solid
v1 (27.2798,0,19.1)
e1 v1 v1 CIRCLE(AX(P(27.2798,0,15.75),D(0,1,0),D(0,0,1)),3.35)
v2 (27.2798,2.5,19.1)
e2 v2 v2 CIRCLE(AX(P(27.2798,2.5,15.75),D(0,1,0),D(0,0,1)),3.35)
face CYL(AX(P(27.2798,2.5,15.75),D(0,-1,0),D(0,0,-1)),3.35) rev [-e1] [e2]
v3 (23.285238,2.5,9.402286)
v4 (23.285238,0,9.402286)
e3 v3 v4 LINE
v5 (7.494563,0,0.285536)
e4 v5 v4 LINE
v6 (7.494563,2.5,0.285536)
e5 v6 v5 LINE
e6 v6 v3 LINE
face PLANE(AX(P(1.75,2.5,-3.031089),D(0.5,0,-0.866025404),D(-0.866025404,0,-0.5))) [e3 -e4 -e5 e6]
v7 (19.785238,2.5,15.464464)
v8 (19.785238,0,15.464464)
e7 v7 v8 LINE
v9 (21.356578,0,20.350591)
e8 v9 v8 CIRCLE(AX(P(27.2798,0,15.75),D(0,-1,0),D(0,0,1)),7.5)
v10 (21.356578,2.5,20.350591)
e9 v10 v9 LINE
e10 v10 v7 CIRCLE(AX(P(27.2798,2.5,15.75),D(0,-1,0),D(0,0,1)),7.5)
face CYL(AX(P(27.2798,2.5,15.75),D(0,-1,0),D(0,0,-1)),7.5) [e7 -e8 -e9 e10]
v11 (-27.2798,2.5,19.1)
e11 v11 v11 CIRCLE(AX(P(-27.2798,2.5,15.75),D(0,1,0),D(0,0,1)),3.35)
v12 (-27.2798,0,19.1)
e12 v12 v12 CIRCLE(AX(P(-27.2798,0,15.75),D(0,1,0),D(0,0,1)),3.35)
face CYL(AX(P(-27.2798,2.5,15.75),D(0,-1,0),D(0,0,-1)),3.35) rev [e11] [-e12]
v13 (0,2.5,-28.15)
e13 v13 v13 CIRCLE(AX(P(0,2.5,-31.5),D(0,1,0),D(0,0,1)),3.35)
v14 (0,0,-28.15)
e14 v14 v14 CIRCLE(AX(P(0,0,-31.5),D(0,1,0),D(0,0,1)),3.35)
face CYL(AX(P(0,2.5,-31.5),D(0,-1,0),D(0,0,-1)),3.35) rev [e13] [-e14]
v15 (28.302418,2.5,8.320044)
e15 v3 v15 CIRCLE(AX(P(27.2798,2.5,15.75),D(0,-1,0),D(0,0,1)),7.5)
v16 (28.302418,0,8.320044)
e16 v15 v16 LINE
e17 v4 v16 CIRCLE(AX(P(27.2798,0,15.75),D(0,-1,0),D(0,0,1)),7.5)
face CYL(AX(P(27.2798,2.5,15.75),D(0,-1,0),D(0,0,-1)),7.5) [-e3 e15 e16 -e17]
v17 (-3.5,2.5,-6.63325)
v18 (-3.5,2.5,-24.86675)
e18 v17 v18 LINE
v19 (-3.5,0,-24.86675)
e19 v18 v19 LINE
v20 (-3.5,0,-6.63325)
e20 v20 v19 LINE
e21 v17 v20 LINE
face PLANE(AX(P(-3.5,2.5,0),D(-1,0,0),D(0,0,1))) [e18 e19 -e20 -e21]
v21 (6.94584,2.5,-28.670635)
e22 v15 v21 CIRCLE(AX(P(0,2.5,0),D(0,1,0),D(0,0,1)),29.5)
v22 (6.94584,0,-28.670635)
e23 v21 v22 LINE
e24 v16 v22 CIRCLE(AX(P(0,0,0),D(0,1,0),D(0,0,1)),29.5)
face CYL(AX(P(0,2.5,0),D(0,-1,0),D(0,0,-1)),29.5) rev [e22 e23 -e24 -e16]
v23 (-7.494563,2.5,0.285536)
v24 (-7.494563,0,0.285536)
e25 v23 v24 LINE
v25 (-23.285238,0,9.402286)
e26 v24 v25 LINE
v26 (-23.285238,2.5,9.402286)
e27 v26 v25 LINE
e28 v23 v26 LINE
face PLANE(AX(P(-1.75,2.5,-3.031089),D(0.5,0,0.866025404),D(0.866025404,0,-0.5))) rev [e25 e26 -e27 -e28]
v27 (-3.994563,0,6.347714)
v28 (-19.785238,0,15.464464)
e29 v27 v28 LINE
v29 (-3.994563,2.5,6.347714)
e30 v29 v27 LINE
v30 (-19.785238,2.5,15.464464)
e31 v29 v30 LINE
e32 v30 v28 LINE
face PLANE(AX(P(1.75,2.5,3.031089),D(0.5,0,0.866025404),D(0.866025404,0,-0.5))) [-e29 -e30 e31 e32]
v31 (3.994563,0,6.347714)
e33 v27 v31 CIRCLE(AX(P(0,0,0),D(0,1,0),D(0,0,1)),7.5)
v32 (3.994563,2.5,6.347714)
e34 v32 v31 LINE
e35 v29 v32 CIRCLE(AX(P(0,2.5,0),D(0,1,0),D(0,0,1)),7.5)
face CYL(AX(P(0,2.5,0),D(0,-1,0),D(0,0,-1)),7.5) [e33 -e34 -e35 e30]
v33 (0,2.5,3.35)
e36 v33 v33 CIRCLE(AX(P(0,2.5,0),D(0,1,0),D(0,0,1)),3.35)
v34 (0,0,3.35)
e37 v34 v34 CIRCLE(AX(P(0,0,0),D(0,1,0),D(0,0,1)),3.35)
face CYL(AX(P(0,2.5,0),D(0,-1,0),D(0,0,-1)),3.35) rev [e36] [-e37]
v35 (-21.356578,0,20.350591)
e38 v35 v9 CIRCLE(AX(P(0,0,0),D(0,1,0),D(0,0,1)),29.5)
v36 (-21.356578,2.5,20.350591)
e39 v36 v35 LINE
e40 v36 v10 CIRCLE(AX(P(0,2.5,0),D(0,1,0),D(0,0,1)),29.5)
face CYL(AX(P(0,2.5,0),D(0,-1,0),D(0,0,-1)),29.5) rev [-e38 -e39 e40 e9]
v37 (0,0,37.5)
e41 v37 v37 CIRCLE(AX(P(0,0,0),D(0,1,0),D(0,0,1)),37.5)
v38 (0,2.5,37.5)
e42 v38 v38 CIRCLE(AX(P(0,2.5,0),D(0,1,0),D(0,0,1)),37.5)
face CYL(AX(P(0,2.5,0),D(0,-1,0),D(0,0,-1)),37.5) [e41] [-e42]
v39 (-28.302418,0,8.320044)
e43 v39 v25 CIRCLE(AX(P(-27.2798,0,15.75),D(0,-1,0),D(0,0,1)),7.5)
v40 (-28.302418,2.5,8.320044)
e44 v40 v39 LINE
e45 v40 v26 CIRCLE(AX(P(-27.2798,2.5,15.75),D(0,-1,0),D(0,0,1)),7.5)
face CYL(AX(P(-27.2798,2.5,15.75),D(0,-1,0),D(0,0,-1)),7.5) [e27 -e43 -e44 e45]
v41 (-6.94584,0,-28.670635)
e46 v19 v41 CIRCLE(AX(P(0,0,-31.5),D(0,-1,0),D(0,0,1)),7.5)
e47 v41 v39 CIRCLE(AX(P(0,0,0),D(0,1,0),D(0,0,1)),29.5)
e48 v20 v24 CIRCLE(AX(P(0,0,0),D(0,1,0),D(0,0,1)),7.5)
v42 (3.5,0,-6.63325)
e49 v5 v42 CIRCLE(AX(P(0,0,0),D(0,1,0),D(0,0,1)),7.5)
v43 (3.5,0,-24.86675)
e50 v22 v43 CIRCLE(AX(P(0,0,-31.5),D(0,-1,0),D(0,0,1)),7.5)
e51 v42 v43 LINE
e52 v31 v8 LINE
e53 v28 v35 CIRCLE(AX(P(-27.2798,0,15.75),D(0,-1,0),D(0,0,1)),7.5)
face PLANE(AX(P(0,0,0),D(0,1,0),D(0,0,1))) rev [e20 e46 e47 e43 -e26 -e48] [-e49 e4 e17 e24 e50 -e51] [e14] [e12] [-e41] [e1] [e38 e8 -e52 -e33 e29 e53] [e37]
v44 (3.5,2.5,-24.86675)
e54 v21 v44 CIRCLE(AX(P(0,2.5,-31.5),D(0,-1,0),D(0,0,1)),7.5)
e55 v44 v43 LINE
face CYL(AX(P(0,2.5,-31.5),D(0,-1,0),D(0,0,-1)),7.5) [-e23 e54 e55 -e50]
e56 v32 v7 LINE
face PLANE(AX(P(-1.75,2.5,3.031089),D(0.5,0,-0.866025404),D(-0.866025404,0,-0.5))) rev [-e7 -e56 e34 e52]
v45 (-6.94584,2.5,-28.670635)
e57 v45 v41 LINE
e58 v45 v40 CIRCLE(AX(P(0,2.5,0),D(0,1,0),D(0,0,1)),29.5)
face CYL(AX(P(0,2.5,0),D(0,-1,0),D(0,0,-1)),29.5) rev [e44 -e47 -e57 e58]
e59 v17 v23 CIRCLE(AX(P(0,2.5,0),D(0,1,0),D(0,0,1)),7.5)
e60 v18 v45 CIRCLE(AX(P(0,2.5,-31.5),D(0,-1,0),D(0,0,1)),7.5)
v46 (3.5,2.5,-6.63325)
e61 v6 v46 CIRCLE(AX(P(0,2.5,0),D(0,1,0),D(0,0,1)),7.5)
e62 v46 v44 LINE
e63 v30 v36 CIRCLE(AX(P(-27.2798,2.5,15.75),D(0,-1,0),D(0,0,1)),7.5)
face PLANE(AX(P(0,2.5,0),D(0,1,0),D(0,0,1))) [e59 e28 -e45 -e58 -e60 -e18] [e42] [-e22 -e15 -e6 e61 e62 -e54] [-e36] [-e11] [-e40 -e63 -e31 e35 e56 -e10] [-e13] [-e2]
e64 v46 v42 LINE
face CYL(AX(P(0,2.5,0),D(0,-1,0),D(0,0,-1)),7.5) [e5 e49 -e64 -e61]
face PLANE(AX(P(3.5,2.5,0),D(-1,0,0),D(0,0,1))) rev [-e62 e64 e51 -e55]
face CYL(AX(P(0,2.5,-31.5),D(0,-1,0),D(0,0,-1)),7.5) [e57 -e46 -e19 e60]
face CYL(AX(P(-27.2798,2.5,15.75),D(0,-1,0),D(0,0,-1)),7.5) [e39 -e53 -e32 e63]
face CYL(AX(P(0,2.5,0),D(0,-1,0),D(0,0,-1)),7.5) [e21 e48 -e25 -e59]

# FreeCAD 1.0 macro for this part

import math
import FreeCAD as App
import Part
import Sketcher

V = App.Vector
Q = App.Units.Quantity

doc = App.newDocument("Part")
body = doc.addObject("PartDesign::Body", "Body")

sketch1 = body.newObject("Sketcher::SketchObject", "Sketch")
sketch1.AttachmentSupport = (doc.getObject("XZ_Plane"), [""])
sketch1.MapMode = "FlatFace"
sketch1.addGeometry([
    Part.Circle(V(0, 0, 0), V(0, 0, 1), 37.5),
    Part.Circle(V(0, -31.5, 0), V(0, 0, 1), 3.4),
    Part.Circle(V(-27.3, 15.8, 0), V(0, 0, 1), 3.4),
    Part.ArcOfCircle(Part.Circle(V(0, 0, 0), V(0, 0, 1), 29.5), math.radians(164), math.radians(256)),
    Part.ArcOfCircle(Part.Circle(V(0, -31.5, 0), V(0, 0, 1), 7.5), math.radians(22), math.radians(158)),
    Part.ArcOfCircle(Part.Circle(V(0, 0, 0), V(0, 0, 1), 29.5), math.radians(-76), math.radians(16)),
    Part.ArcOfCircle(Part.Circle(V(27.3, 15.8, 0), V(0, 0, 1), 7.5), math.radians(142), math.radians(278)),
    Part.ArcOfCircle(Part.Circle(V(0, 0, 0), V(0, 0, 1), 29.5), math.radians(44), math.radians(136)),
    Part.ArcOfCircle(Part.Circle(V(-27.3, 15.8, 0), V(0, 0, 1), 7.5), math.radians(-98), math.radians(38)),
    Part.Circle(V(27.3, 15.8, 0), V(0, 0, 1), 3.4),
], False)
sketch1.addConstraint([
    Sketcher.Constraint("Coincident", 3, 2, 4, 2),
    Sketcher.Constraint("Coincident", 4, 1, 5, 1),
    Sketcher.Constraint("Coincident", 5, 2, 6, 2),
    Sketcher.Constraint("Coincident", 6, 1, 7, 1),
    Sketcher.Constraint("Coincident", 7, 2, 8, 2),
    Sketcher.Constraint("Coincident", 8, 1, 3, 1),
    Sketcher.Constraint("Coincident", 0, 3, -1, 1),
    Sketcher.Constraint("Coincident", 3, 3, -1, 1),
    Sketcher.Constraint("Coincident", 5, 3, -1, 1),
    Sketcher.Constraint("Coincident", 7, 3, -1, 1),
    Sketcher.Constraint("Coincident", 4, 3, 1, 3),
    Sketcher.Constraint("Coincident", 8, 3, 2, 3),
    Sketcher.Constraint("Coincident", 9, 3, 6, 3),
    Sketcher.Constraint("Equal", 1, 2),
    Sketcher.Constraint("Equal", 3, 5),
    Sketcher.Constraint("Equal", 4, 6),
    Sketcher.Constraint("Equal", 5, 7),
    Sketcher.Constraint("Equal", 6, 8),
    Sketcher.Constraint("Equal", 2, 9),
    Sketcher.Constraint("Symmetric", 2, 3, 6, 3, -2),
    Sketcher.Constraint("PointOnObject", 1, 3, -2),
    Sketcher.Constraint("Diameter", 0, 75.0),
    Sketcher.Constraint("Diameter", 1, 6.7),
    Sketcher.Constraint("Radius", 3, 29.5),
    Sketcher.Constraint("Radius", 4, 7.5),
    Sketcher.Constraint("DistanceY", 1, 3, -1, 1, 31.5),
    Sketcher.Constraint("DistanceY", -1, 1, 2, 3, 15.75),
    Sketcher.Constraint("DistanceX", 2, 3, -1, 1, 27.2798),
])
pad1 = body.newObject("PartDesign::Pad", "Pad")
pad1.Profile = sketch1
pad1.Length = 2.5
pad1.Reversed = True

sketch2 = body.newObject("Sketcher::SketchObject", "Sketch001")
sketch2.AttachmentSupport = (doc.getObject("XZ_Plane"), [""])
sketch2.MapMode = "FlatFace"
sketch2.addGeometry([
    Part.LineSegment(V(-3.5, -31.5, 0), V(-3.5, -6.63, 0)),
    Part.ArcOfCircle(Part.Circle(V(0, 0, 0), V(0, 0, 1), 7.5), math.radians(178), math.radians(242)),
    Part.LineSegment(V(-7.49, 0.29, 0), V(-29.03, 12.72, 0)),
    Part.LineSegment(V(-29.03, 12.72, 0), V(-28.95, 12.85, 0)),
    Part.ArcOfCircle(Part.Circle(V(-27.28, 15.75, 0), V(0, 0, 1), 3.35), math.radians(-120), math.radians(60)),
    Part.LineSegment(V(-25.6, 18.65, 0), V(-25.53, 18.78, 0)),
    Part.LineSegment(V(-25.53, 18.78, 0), V(-3.99, 6.35, 0)),
    Part.ArcOfCircle(Part.Circle(V(0, 0, 0), V(0, 0, 1), 7.5), math.radians(58), math.radians(122)),
    Part.LineSegment(V(3.99, 6.35, 0), V(25.53, 18.78, 0)),
    Part.LineSegment(V(25.53, 18.78, 0), V(25.6, 18.65, 0)),
    Part.ArcOfCircle(Part.Circle(V(27.28, 15.75, 0), V(0, 0, 1), 3.35), math.radians(120), math.radians(300)),
    Part.LineSegment(V(28.95, 12.85, 0), V(29.03, 12.72, 0)),
    Part.LineSegment(V(29.03, 12.72, 0), V(7.49, 0.29, 0)),
    Part.ArcOfCircle(Part.Circle(V(0, 0, 0), V(0, 0, 1), 7.5), math.radians(-62), math.radians(2)),
    Part.LineSegment(V(3.5, -6.63, 0), V(3.5, -31.5, 0)),
    Part.LineSegment(V(3.5, -31.5, 0), V(3.35, -31.5, 0)),
    Part.ArcOfCircle(Part.Circle(V(0, -31.5, 0), V(0, 0, 1), 3.35), math.radians(0), math.radians(180)),
    Part.LineSegment(V(-3.35, -31.5, 0), V(-3.5, -31.5, 0)),
    Part.ArcOfCircle(Part.Circle(V(0, 0, 0), V(0, 0, 1), 3.35), math.radians(60), math.radians(240)),
    Part.ArcOfCircle(Part.Circle(V(0, 0, 0), V(0, 0, 1), 3.35), math.radians(-120), math.radians(60)),
], False)
sketch2.addConstraint([
    Sketcher.Constraint("Coincident", 0, 2, 1, 2),
    Sketcher.Constraint("Coincident", 1, 1, 2, 1),
    Sketcher.Constraint("Coincident", 2, 2, 3, 1),
    Sketcher.Constraint("Coincident", 3, 2, 4, 1),
    Sketcher.Constraint("Coincident", 4, 2, 5, 1),
    Sketcher.Constraint("Coincident", 5, 2, 6, 1),
    Sketcher.Constraint("Coincident", 6, 2, 7, 2),
    Sketcher.Constraint("Coincident", 7, 1, 8, 1),
    Sketcher.Constraint("Coincident", 8, 2, 9, 1),
    Sketcher.Constraint("Coincident", 9, 2, 10, 1),
    Sketcher.Constraint("Coincident", 10, 2, 11, 1),
    Sketcher.Constraint("Coincident", 11, 2, 12, 1),
    Sketcher.Constraint("Coincident", 12, 2, 13, 2),
    Sketcher.Constraint("Coincident", 13, 1, 14, 1),
    Sketcher.Constraint("Coincident", 14, 2, 15, 1),
    Sketcher.Constraint("Coincident", 15, 2, 16, 1),
    Sketcher.Constraint("Coincident", 16, 2, 17, 1),
    Sketcher.Constraint("Coincident", 17, 2, 0, 1),
    Sketcher.Constraint("Tangent", 18, 1, 19, 2),
    Sketcher.Constraint("Coincident", 19, 1, 18, 2),
    Sketcher.Constraint("Vertical", 0),
    Sketcher.Constraint("Vertical", 14),
    Sketcher.Constraint("Horizontal", 15),
    Sketcher.Constraint("Horizontal", 17),
    Sketcher.Constraint("Coincident", 1, 3, -1, 1),
    Sketcher.Constraint("Coincident", 7, 3, -1, 1),
    Sketcher.Constraint("Coincident", 13, 3, -1, 1),
    Sketcher.Constraint("Coincident", 18, 3, -1, 1),
    Sketcher.Constraint("Equal", 1, 7),
    Sketcher.Constraint("Equal", 4, 10),
    Sketcher.Constraint("Equal", 7, 13),
    Sketcher.Constraint("Equal", 10, 16),
    Sketcher.Constraint("Equal", 16, 18),
    Sketcher.Constraint("Symmetric", 4, 3, 10, 3, -2),
    Sketcher.Constraint("Symmetric", 5, 2, 8, 2, -2),
    Sketcher.Constraint("Symmetric", 2, 2, 11, 2, -2),
    Sketcher.Constraint("Symmetric", 15, 2, 16, 2, -2),
    Sketcher.Constraint("Perpendicular", 2, 3),
    Sketcher.Constraint("Parallel", 3, 5),
    Sketcher.Constraint("Perpendicular", 5, 6),
    Sketcher.Constraint("Perpendicular", 8, 9),
    Sketcher.Constraint("Parallel", 9, 11),
    Sketcher.Constraint("Perpendicular", 11, 12),
    Sketcher.Constraint("Horizontal", 6, 2, 7, 1),
    Sketcher.Constraint("Horizontal", 0, 2, 13, 1),
    Sketcher.Constraint("Horizontal", 16, 3, 14, 2),
    Sketcher.Constraint("Equal", 3, 5),
    Sketcher.Constraint("Equal", 2, 6),
    Sketcher.Constraint("Radius", 1, 7.5),
    Sketcher.Constraint("Angle", 2, Q("150 deg")),
    Sketcher.Constraint("Radius", 4, 3.35),
    Sketcher.Constraint("DistanceX", 0, 2, 13, 1, 7.0),
    Sketcher.Constraint("DistanceY", 16, 3, -1, 1, 31.5),
    Sketcher.Constraint("DistanceX", 2, 2, 5, 2, 3.5),
    Sketcher.Constraint("Distance", 3, 0.15),
    Sketcher.Constraint("DistanceY", -1, 1, 4, 3, 15.75),
    Sketcher.Constraint("DistanceX", 2, 2, 4, 3, 1.75),
    Sketcher.Constraint("DistanceX", -1, 1, 18, 1, 1.675),
    Sketcher.Constraint("DistanceX", 19, 1, -1, 1, 1.675),
])
pad2 = body.newObject("PartDesign::Pad", "Pad001")
pad2.Profile = sketch2
pad2.Length = 2.5
pad2.Reversed = True

doc.recompute()
